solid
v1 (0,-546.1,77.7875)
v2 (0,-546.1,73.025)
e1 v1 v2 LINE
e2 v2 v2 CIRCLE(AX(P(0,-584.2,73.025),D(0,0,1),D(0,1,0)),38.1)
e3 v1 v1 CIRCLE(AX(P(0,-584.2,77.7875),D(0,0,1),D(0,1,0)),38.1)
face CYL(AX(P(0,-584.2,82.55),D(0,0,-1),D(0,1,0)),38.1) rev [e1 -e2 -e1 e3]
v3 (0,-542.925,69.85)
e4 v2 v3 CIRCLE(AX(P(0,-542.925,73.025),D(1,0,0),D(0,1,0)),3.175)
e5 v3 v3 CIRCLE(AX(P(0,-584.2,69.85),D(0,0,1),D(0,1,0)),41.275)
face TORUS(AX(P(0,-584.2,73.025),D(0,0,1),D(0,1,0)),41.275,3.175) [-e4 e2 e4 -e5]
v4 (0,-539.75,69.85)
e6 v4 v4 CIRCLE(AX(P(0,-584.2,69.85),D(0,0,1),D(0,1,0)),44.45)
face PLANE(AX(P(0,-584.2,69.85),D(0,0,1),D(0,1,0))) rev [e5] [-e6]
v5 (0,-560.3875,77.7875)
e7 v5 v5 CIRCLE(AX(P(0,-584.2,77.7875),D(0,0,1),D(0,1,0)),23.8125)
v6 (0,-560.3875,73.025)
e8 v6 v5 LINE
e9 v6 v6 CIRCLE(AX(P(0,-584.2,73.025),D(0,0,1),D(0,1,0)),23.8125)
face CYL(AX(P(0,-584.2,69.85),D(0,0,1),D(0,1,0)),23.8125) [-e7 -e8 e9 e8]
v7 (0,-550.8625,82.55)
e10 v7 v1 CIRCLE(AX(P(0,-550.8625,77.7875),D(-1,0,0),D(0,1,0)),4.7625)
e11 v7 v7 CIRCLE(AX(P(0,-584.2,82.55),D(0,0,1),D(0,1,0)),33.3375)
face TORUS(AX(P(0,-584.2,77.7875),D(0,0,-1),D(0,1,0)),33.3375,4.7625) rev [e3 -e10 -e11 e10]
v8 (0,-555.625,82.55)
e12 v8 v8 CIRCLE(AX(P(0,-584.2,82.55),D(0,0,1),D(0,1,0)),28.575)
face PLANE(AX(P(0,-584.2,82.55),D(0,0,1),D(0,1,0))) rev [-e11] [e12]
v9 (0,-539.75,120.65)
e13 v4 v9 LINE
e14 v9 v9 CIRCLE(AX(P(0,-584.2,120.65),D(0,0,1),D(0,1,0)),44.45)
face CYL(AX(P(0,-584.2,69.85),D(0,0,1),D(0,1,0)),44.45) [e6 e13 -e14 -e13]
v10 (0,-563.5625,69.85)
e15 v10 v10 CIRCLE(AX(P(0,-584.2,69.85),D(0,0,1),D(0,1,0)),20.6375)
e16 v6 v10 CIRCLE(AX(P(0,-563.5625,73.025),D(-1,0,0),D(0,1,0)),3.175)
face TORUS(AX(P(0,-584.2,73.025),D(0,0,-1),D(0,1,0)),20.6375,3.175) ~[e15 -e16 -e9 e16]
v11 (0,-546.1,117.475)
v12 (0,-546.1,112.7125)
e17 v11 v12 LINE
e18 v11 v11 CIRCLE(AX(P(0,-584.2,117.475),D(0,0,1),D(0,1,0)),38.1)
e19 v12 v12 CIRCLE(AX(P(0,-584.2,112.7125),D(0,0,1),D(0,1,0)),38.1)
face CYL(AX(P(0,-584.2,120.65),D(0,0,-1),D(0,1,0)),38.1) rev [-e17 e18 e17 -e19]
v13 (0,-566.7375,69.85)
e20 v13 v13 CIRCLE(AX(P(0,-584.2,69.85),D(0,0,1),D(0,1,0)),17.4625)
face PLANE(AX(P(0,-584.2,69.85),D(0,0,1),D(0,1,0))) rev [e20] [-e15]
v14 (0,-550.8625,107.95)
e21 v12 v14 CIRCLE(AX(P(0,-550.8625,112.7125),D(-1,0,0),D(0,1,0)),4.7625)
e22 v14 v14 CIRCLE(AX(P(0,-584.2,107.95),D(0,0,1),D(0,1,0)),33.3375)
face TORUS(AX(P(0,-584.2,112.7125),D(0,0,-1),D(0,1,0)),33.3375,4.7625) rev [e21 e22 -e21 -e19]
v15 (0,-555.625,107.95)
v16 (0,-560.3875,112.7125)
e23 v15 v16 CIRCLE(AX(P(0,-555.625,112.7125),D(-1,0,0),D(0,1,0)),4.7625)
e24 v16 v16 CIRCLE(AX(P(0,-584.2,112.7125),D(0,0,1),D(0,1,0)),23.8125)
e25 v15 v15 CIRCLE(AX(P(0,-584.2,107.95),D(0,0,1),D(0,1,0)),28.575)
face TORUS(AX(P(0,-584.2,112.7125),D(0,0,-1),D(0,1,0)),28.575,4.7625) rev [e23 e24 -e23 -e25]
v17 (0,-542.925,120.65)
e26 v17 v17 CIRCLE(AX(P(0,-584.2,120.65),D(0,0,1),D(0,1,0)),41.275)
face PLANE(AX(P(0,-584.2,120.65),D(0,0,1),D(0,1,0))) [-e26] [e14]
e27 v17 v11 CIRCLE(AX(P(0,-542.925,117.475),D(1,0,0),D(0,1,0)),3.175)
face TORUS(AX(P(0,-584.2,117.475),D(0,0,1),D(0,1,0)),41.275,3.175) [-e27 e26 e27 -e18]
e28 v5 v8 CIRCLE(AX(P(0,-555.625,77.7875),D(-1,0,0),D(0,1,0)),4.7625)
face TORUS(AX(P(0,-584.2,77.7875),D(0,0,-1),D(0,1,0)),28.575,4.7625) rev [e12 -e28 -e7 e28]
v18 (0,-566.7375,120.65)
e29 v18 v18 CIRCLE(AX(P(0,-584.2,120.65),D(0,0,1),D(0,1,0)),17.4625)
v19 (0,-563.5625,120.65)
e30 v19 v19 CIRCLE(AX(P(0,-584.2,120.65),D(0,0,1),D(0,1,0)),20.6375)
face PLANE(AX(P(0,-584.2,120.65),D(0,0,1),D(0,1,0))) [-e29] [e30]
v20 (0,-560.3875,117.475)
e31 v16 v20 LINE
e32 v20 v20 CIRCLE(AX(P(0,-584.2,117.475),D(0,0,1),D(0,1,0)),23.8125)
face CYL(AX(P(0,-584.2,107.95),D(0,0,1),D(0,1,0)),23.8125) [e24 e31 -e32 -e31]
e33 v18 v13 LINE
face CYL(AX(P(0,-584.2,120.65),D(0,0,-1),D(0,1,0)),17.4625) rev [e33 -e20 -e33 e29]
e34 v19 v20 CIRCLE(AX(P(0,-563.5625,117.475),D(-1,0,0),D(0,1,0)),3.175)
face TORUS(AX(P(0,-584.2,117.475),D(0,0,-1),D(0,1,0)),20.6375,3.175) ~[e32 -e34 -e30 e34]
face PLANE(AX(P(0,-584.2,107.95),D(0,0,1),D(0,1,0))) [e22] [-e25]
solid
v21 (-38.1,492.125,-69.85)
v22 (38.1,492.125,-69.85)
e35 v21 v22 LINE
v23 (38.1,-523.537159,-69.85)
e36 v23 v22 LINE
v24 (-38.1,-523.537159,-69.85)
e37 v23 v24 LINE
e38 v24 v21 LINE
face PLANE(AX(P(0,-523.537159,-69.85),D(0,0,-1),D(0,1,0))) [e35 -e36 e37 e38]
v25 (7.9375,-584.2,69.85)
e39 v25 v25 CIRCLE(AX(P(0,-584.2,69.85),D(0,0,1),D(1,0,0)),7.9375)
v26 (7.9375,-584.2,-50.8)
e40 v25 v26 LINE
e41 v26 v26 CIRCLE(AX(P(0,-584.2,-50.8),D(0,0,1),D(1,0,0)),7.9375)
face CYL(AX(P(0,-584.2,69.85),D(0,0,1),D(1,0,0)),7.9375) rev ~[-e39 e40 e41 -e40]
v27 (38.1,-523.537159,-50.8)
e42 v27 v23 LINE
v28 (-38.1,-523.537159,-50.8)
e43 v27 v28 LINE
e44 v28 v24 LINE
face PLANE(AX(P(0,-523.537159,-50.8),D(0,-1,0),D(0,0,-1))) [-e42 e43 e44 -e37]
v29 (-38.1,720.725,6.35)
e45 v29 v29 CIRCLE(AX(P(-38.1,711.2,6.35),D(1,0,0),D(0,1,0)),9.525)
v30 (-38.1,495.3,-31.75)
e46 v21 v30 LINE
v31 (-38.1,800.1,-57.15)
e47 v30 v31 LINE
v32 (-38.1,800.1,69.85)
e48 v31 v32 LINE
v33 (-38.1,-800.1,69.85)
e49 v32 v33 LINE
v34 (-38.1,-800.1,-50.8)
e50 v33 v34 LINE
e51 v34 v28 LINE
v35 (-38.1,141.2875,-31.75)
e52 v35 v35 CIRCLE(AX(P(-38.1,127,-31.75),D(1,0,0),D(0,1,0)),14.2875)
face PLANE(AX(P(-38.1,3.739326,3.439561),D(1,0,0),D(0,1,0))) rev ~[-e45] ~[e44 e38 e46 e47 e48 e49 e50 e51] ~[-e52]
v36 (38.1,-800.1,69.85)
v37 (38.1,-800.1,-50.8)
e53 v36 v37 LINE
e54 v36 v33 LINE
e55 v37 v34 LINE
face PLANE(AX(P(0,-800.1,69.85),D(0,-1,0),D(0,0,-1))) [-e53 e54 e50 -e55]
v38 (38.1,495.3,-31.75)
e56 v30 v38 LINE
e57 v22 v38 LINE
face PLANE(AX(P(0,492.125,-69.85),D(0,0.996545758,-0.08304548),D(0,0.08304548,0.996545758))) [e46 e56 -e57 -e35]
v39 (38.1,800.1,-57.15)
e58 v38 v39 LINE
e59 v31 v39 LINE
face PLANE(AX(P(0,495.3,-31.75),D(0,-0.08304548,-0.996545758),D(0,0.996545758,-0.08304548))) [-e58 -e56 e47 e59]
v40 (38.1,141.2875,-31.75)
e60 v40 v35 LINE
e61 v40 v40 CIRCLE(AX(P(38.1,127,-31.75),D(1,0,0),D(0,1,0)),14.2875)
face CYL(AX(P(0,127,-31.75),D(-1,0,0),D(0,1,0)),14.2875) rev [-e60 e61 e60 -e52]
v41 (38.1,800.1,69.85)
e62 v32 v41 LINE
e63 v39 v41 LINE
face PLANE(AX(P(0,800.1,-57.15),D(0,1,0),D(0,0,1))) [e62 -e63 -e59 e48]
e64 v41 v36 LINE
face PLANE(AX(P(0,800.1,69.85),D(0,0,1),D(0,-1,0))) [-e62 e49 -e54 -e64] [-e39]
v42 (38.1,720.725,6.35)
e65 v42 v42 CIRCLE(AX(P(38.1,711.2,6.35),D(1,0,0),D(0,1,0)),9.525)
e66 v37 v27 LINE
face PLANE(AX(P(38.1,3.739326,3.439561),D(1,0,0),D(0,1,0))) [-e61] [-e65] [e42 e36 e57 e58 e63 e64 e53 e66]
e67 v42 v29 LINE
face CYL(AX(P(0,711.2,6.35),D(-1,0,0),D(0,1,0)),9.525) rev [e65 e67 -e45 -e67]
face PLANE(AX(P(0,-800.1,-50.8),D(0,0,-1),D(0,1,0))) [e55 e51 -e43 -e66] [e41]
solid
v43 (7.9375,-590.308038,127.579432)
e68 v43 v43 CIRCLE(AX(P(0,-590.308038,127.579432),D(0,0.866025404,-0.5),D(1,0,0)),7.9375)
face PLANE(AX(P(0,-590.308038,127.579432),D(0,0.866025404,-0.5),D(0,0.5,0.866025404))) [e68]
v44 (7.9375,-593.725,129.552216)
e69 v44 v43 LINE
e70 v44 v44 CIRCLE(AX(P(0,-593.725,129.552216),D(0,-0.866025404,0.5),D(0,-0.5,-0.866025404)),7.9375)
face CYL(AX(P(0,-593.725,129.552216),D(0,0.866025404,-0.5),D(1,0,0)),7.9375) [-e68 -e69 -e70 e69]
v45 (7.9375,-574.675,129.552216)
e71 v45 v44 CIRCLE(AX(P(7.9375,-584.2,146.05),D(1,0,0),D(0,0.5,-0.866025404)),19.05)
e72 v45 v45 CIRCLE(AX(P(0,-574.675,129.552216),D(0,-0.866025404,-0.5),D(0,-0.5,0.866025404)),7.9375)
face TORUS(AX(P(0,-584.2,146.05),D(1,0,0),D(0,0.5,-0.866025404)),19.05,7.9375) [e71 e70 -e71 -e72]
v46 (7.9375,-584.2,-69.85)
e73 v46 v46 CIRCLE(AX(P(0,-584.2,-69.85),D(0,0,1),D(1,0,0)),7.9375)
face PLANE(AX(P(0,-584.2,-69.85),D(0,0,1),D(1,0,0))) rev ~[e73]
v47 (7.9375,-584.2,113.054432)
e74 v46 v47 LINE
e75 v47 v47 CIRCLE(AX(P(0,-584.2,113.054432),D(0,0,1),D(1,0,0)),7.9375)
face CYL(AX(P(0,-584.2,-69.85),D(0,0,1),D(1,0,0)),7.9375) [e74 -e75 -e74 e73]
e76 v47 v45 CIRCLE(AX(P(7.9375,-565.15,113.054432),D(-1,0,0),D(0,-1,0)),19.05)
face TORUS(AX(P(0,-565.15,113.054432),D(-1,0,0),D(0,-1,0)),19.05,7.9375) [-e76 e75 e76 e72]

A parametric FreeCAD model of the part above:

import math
import FreeCAD as App
import Part
import Sketcher
from FreeCAD import Vector
Q = App.Units.Quantity


def edges_at(feature, points):
    """Names of the edges that pass closest to the given points."""
    edges = feature.Shape.Edges
    near = lambda p: min(range(len(edges)), key=lambda i: edges[i].distToShape(Part.Vertex(*p))[0])
    return sorted({f"Edge{near(p) + 1}" for p in points})

doc = App.newDocument("Part")
body = doc.addObject("PartDesign::Body", "Body")

# Sketch on YZ plane
sketch1 = doc.addObject("Sketcher::SketchObject", "Sketch")
body.addObject(sketch1)
sketch1.AttachmentSupport = (doc.YZ_Plane, [""])
sketch1.MapMode = "FlatFace"
sketch1.addGeometry([
    Part.LineSegment(Vector(-523.537159, -69.85, 0), Vector(492.125, -69.85, 0)),  # 0
    Part.LineSegment(Vector(492.125, -69.85, 0), Vector(495.3, -31.75, 0)),  # 1
    Part.LineSegment(Vector(495.3, -31.75, 0), Vector(800.1, -57.15, 0)),  # 2
    Part.LineSegment(Vector(800.1, -57.15, 0), Vector(800.1, 69.85, 0)),  # 3
    Part.LineSegment(Vector(800.1, 69.85, 0), Vector(-800.1, 69.85, 0)),  # 4
    Part.LineSegment(Vector(-800.1, 69.85, 0), Vector(-800.1, -50.8, 0)),  # 5
    Part.LineSegment(Vector(-800.1, -50.8, 0), Vector(-523.537159, -50.8, 0)),  # 6
    Part.LineSegment(Vector(-523.537159, -50.8, 0), Vector(-523.537159, -69.85, 0)),  # 7
    Part.Circle(Vector(127, -31.75, 0), Vector(0, 0, 1), 14.2875),  # 8
    Part.Circle(Vector(711.2, 6.35, 0), Vector(0, 0, 1), 9.525),  # 9
], False)
sketch1.addConstraint([
    Sketcher.Constraint("Coincident", 0, 2, 1, 1),
    Sketcher.Constraint("Coincident", 1, 2, 2, 1),
    Sketcher.Constraint("Coincident", 2, 2, 3, 1),
    Sketcher.Constraint("Coincident", 3, 2, 4, 1),
    Sketcher.Constraint("Coincident", 4, 2, 5, 1),
    Sketcher.Constraint("Coincident", 5, 2, 6, 1),
    Sketcher.Constraint("Coincident", 6, 2, 7, 1),
    Sketcher.Constraint("Coincident", 7, 2, 0, 1),
    Sketcher.Constraint("Horizontal", 0),
    Sketcher.Constraint("Vertical", 3),
    Sketcher.Constraint("Horizontal", 4),
    Sketcher.Constraint("Vertical", 5),
    Sketcher.Constraint("Horizontal", 6),
    Sketcher.Constraint("Vertical", 7),
    Sketcher.Constraint("Perpendicular", 1, 2),
    Sketcher.Constraint("Horizontal", 8, 3, 1, 2),
    Sketcher.Constraint("Diameter", 9, Q("0.75 in")),
    Sketcher.Constraint("DistanceX", 4, 2, 4, 1, Q("63 in")),
    Sketcher.Constraint("DistanceY", 3, 1, 3, 2, Q("5 in")),
    Sketcher.Constraint("Diameter", 8, Q("1.125 in")),
    Sketcher.Constraint("DistanceX", -1, 1, 8, 3, Q("5 in")),
    Sketcher.Constraint("DistanceX", -1, 1, 9, 3, Q("28 in")),
    Sketcher.Constraint("DistanceY", 5, 2, -1, 1, Q("2 in")),
    Sketcher.Constraint("DistanceY", 0, 2, 9, 3, Q("3 in")),
    Sketcher.Constraint("DistanceX", 1, 2, 2, 2, Q("12 in")),
    Sketcher.Constraint("DistanceY", 2, 2, 1, 2, Q("1 in")),
    Sketcher.Constraint("DistanceY", 5, 2, 5, 1, Q("4.75 in")),
    Sketcher.Constraint("DistanceY", 7, 2, 7, 1, Q("0.75 in")),
    Sketcher.Constraint("DistanceX", -1, 1, 1, 2, Q("19.5 in")),
    Sketcher.Constraint("DistanceX", 0, 1, 0, 2, 1015.662159),
])
pad1 = doc.addObject("PartDesign::Pad", "Pad")
body.addObject(pad1)
pad1.Profile = sketch1
pad1.Length = Q("3 in")
pad1.Midplane = True

# Sketch on XY plane
sketch2 = doc.addObject("Sketcher::SketchObject", "Sketch001")
body.addObject(sketch2)
sketch2.AttachmentSupport = (doc.XY_Plane, [""])
sketch2.MapMode = "FlatFace"
sketch2.AttachmentOffset = App.Placement(Vector(0, 0, 2.75 * 25.4), App.Rotation())
sketch2.addGeometry(Part.Circle(Vector(0, -584.2, 0), Vector(0, 0, 1), 7.9375), False)
sketch2.addConstraint([
    Sketcher.Constraint("PointOnObject", 0, 3, -2),
    Sketcher.Constraint("Diameter", 0, Q("0.625 in")),
    Sketcher.Constraint("DistanceY", 0, 3, -1, 1, Q("23 in")),
])
pocket1 = doc.addObject("PartDesign::Pocket", "Pocket")
body.addObject(pocket1)
pocket1.Profile = sketch2
pocket1.Type = "ThroughAll"
body2 = doc.addObject("PartDesign::Body", "Body001")

# Sketch on XY plane
sketch3 = doc.addObject("Sketcher::SketchObject", "Sketch002")
body2.addObject(sketch3)
sketch3.AttachmentSupport = (doc.getObject("XY_Plane001"), [""])
sketch3.MapMode = "FlatFace"
sketch3.AttachmentOffset = App.Placement(Vector(0, 0, -2.75 * 25.4), App.Rotation())
sketch3.addGeometry(Part.Circle(Vector(0, -584.2, 0), Vector(0, 0, 1), 7.9375), False)
sketch3.addConstraint([
    Sketcher.Constraint("PointOnObject", 0, 3, -2),
    Sketcher.Constraint("Diameter", 0, Q("0.625 in")),
    Sketcher.Constraint("DistanceY", 0, 3, -1, 1, Q("23 in")),
])

# Sketch on YZ plane
sketch4 = doc.addObject("Sketcher::SketchObject", "Sketch003")
body2.addObject(sketch4)
sketch4.AttachmentSupport = (doc.getObject("YZ_Plane001"), [""])
sketch4.MapMode = "FlatFace"
sketch4.addGeometry([
    Part.LineSegment(Vector(-584.2, -69.85, 0), Vector(-584.2, 113.054432, 0)),
    Part.ArcOfCircle(Part.Circle(Vector(-565.15, 113.054432, 0), Vector(0, 0, 1), 19.05), math.radians(120), math.radians(180)),
    Part.ArcOfCircle(Part.Circle(Vector(-584.2, 146.05, 0), Vector(0, 0, 1), 19.05), math.radians(-60), math.radians(240)),
    Part.LineSegment(Vector(-593.725, 129.552216, 0), Vector(-590.308038, 127.579432, 0)),
], False)
sketch4.addConstraint([
    Sketcher.Constraint("Tangent", 0, 2, 1, 2),
    Sketcher.Constraint("Tangent", 1, 1, 2, 1),
    Sketcher.Constraint("Tangent", 2, 2, 3, 1),
    Sketcher.Constraint("Vertical", 0),
    Sketcher.Constraint("Equal", 1, 2),
    Sketcher.Constraint("Horizontal", 1, 1, 2, 2),
    Sketcher.Constraint("Vertical", 2, 3, 0, 1),
    Sketcher.Constraint("Radius", 1, Q("0.75 in")),
    Sketcher.Constraint("DistanceX", 2, 3, -1, 1, Q("23 in")),
    Sketcher.Constraint("DistanceY", 0, 1, 2, 3, Q("8.5 in")),
    Sketcher.Constraint("DistanceY", -1, 1, 2, 3, Q("5.75 in")),
    Sketcher.Constraint("DistanceY", 0, 2, 3, 2, 14.525),
])
doc.recompute()

additivepipe = doc.addObject("PartDesign::AdditivePipe", "AdditivePipe")
body2.addObject(additivepipe)
additivepipe.Profile = sketch3
additivepipe.Spine = (sketch4, ["Edge1", "Edge2", "Edge3", "Edge4"])
body3 = doc.addObject("PartDesign::Body", "Body002")

# Sketch on YZ plane
sketch5 = doc.addObject("Sketcher::SketchObject", "Sketch004")
body3.addObject(sketch5)
sketch5.AttachmentSupport = (doc.getObject("YZ_Plane002"), [""])
sketch5.MapMode = "FlatFace"
sketch5.addGeometry([
    Part.LineSegment(Vector(-566.7375, 120.65, 0), Vector(-566.7375, 69.85, 0)),  # 0
    Part.LineSegment(Vector(-566.7375, 69.85, 0), Vector(-560.3875, 69.85, 0)),  # 1
    Part.LineSegment(Vector(-560.3875, 69.85, 0), Vector(-560.3875, 82.55, 0)),  # 2
    Part.LineSegment(Vector(-560.3875, 82.55, 0), Vector(-546.1, 82.55, 0)),  # 3
    Part.LineSegment(Vector(-546.1, 82.55, 0), Vector(-546.1, 69.85, 0)),  # 4
    Part.LineSegment(Vector(-546.1, 69.85, 0), Vector(-539.75, 69.85, 0)),  # 5
    Part.LineSegment(Vector(-539.75, 69.85, 0), Vector(-539.75, 120.65, 0)),  # 6
    Part.LineSegment(Vector(-539.75, 120.65, 0), Vector(-546.1, 120.65, 0)),  # 7
    Part.LineSegment(Vector(-546.1, 120.65, 0), Vector(-546.1, 107.95, 0)),  # 8
    Part.LineSegment(Vector(-546.1, 107.95, 0), Vector(-560.3875, 107.95, 0)),  # 9
    Part.LineSegment(Vector(-560.3875, 107.95, 0), Vector(-560.3875, 120.65, 0)),  # 10
    Part.LineSegment(Vector(-560.3875, 120.65, 0), Vector(-566.7375, 120.65, 0)),  # 11
], False)
sketch5.addGeometry(Part.LineSegment(Vector(-584.2, 69.85, 0), Vector(-584.2, 120.65, 0)), True)  # axis
sketch5.addConstraint([
    Sketcher.Constraint("Coincident", 0, 2, 1, 1),
    Sketcher.Constraint("Coincident", 1, 2, 2, 1),
    Sketcher.Constraint("Coincident", 2, 2, 3, 1),
    Sketcher.Constraint("Coincident", 3, 2, 4, 1),
    Sketcher.Constraint("Coincident", 4, 2, 5, 1),
    Sketcher.Constraint("Coincident", 5, 2, 6, 1),
    Sketcher.Constraint("Coincident", 6, 2, 7, 1),
    Sketcher.Constraint("Coincident", 7, 2, 8, 1),
    Sketcher.Constraint("Coincident", 8, 2, 9, 1),
    Sketcher.Constraint("Coincident", 9, 2, 10, 1),
    Sketcher.Constraint("Coincident", 10, 2, 11, 1),
    Sketcher.Constraint("Coincident", 11, 2, 0, 1),
    Sketcher.Constraint("Vertical", 0),
    Sketcher.Constraint("Horizontal", 1),
    Sketcher.Constraint("Vertical", 2),
    Sketcher.Constraint("Horizontal", 3),
    Sketcher.Constraint("Vertical", 4),
    Sketcher.Constraint("Horizontal", 5),
    Sketcher.Constraint("Vertical", 6),
    Sketcher.Constraint("Horizontal", 7),
    Sketcher.Constraint("Vertical", 8),
    Sketcher.Constraint("Horizontal", 9),
    Sketcher.Constraint("Vertical", 10),
    Sketcher.Constraint("Horizontal", 11),
    Sketcher.Constraint("Vertical", 12),
    Sketcher.Constraint("Horizontal", 1, 2, 4, 2),
    Sketcher.Constraint("Horizontal", 7, 2, 10, 2),
    Sketcher.Constraint("Horizontal", 5, 2, 12, 1),
    Sketcher.Constraint("Horizontal", 11, 2, 12, 2),
    Sketcher.Constraint("Vertical", 4, 2, 7, 2),
    Sketcher.Constraint("Vertical", 2, 2, 9, 2),
    Sketcher.Constraint("Equal", 1, 5),
    Sketcher.Constraint("Equal", 4, 8),
    Sketcher.Constraint("DistanceY", 0, 2, 0, 1, Q("2 in")),
    Sketcher.Constraint("DistanceY", 2, 1, 2, 2, Q("0.5 in")),
    Sketcher.Constraint("DistanceX", 12, 1, -1, 1, Q("23 in")),
    Sketcher.Constraint("DistanceX", 1, 1, 1, 2, Q("0.25 in")),
    Sketcher.Constraint("DistanceX", 3, 2, -1, 1, Q("21.5 in")),
    Sketcher.Constraint("DistanceX", 3, 1, 3, 2, Q("0.5625 in")),
    Sketcher.Constraint("DistanceY", -1, 1, 0, 2, Q("2.75 in")),
])
revolution = doc.addObject("PartDesign::Revolution", "Revolution")
body3.addObject(revolution)
revolution.Profile = sketch5
revolution.ReferenceAxis = (sketch5, ["Axis0"])
revolution.Angle = 360
doc.recompute()

fillet = doc.addObject("PartDesign::Fillet", "Fillet")
body3.addObject(fillet)
fillet.Base = (revolution, edges_at(revolution, [
    (0, -622.3, 82.55),
    (0, -608.013, 82.55),
    (0, -622.3, 107.95),
    (0, -608.013, 107.95),
]))
fillet.Radius = Q("0.1875 in")
doc.recompute()

fillet2 = doc.addObject("PartDesign::Fillet", "Fillet001")
body3.addObject(fillet2)
fillet2.Base = (fillet, edges_at(fillet, [
    (0, -622.3, 120.65),
    (0, -622.3, 69.85),
    (0, -608.013, 69.85),
    (0, -608.013, 120.65),
]))
fillet2.Radius = Q("0.125 in")

doc.recompute()
